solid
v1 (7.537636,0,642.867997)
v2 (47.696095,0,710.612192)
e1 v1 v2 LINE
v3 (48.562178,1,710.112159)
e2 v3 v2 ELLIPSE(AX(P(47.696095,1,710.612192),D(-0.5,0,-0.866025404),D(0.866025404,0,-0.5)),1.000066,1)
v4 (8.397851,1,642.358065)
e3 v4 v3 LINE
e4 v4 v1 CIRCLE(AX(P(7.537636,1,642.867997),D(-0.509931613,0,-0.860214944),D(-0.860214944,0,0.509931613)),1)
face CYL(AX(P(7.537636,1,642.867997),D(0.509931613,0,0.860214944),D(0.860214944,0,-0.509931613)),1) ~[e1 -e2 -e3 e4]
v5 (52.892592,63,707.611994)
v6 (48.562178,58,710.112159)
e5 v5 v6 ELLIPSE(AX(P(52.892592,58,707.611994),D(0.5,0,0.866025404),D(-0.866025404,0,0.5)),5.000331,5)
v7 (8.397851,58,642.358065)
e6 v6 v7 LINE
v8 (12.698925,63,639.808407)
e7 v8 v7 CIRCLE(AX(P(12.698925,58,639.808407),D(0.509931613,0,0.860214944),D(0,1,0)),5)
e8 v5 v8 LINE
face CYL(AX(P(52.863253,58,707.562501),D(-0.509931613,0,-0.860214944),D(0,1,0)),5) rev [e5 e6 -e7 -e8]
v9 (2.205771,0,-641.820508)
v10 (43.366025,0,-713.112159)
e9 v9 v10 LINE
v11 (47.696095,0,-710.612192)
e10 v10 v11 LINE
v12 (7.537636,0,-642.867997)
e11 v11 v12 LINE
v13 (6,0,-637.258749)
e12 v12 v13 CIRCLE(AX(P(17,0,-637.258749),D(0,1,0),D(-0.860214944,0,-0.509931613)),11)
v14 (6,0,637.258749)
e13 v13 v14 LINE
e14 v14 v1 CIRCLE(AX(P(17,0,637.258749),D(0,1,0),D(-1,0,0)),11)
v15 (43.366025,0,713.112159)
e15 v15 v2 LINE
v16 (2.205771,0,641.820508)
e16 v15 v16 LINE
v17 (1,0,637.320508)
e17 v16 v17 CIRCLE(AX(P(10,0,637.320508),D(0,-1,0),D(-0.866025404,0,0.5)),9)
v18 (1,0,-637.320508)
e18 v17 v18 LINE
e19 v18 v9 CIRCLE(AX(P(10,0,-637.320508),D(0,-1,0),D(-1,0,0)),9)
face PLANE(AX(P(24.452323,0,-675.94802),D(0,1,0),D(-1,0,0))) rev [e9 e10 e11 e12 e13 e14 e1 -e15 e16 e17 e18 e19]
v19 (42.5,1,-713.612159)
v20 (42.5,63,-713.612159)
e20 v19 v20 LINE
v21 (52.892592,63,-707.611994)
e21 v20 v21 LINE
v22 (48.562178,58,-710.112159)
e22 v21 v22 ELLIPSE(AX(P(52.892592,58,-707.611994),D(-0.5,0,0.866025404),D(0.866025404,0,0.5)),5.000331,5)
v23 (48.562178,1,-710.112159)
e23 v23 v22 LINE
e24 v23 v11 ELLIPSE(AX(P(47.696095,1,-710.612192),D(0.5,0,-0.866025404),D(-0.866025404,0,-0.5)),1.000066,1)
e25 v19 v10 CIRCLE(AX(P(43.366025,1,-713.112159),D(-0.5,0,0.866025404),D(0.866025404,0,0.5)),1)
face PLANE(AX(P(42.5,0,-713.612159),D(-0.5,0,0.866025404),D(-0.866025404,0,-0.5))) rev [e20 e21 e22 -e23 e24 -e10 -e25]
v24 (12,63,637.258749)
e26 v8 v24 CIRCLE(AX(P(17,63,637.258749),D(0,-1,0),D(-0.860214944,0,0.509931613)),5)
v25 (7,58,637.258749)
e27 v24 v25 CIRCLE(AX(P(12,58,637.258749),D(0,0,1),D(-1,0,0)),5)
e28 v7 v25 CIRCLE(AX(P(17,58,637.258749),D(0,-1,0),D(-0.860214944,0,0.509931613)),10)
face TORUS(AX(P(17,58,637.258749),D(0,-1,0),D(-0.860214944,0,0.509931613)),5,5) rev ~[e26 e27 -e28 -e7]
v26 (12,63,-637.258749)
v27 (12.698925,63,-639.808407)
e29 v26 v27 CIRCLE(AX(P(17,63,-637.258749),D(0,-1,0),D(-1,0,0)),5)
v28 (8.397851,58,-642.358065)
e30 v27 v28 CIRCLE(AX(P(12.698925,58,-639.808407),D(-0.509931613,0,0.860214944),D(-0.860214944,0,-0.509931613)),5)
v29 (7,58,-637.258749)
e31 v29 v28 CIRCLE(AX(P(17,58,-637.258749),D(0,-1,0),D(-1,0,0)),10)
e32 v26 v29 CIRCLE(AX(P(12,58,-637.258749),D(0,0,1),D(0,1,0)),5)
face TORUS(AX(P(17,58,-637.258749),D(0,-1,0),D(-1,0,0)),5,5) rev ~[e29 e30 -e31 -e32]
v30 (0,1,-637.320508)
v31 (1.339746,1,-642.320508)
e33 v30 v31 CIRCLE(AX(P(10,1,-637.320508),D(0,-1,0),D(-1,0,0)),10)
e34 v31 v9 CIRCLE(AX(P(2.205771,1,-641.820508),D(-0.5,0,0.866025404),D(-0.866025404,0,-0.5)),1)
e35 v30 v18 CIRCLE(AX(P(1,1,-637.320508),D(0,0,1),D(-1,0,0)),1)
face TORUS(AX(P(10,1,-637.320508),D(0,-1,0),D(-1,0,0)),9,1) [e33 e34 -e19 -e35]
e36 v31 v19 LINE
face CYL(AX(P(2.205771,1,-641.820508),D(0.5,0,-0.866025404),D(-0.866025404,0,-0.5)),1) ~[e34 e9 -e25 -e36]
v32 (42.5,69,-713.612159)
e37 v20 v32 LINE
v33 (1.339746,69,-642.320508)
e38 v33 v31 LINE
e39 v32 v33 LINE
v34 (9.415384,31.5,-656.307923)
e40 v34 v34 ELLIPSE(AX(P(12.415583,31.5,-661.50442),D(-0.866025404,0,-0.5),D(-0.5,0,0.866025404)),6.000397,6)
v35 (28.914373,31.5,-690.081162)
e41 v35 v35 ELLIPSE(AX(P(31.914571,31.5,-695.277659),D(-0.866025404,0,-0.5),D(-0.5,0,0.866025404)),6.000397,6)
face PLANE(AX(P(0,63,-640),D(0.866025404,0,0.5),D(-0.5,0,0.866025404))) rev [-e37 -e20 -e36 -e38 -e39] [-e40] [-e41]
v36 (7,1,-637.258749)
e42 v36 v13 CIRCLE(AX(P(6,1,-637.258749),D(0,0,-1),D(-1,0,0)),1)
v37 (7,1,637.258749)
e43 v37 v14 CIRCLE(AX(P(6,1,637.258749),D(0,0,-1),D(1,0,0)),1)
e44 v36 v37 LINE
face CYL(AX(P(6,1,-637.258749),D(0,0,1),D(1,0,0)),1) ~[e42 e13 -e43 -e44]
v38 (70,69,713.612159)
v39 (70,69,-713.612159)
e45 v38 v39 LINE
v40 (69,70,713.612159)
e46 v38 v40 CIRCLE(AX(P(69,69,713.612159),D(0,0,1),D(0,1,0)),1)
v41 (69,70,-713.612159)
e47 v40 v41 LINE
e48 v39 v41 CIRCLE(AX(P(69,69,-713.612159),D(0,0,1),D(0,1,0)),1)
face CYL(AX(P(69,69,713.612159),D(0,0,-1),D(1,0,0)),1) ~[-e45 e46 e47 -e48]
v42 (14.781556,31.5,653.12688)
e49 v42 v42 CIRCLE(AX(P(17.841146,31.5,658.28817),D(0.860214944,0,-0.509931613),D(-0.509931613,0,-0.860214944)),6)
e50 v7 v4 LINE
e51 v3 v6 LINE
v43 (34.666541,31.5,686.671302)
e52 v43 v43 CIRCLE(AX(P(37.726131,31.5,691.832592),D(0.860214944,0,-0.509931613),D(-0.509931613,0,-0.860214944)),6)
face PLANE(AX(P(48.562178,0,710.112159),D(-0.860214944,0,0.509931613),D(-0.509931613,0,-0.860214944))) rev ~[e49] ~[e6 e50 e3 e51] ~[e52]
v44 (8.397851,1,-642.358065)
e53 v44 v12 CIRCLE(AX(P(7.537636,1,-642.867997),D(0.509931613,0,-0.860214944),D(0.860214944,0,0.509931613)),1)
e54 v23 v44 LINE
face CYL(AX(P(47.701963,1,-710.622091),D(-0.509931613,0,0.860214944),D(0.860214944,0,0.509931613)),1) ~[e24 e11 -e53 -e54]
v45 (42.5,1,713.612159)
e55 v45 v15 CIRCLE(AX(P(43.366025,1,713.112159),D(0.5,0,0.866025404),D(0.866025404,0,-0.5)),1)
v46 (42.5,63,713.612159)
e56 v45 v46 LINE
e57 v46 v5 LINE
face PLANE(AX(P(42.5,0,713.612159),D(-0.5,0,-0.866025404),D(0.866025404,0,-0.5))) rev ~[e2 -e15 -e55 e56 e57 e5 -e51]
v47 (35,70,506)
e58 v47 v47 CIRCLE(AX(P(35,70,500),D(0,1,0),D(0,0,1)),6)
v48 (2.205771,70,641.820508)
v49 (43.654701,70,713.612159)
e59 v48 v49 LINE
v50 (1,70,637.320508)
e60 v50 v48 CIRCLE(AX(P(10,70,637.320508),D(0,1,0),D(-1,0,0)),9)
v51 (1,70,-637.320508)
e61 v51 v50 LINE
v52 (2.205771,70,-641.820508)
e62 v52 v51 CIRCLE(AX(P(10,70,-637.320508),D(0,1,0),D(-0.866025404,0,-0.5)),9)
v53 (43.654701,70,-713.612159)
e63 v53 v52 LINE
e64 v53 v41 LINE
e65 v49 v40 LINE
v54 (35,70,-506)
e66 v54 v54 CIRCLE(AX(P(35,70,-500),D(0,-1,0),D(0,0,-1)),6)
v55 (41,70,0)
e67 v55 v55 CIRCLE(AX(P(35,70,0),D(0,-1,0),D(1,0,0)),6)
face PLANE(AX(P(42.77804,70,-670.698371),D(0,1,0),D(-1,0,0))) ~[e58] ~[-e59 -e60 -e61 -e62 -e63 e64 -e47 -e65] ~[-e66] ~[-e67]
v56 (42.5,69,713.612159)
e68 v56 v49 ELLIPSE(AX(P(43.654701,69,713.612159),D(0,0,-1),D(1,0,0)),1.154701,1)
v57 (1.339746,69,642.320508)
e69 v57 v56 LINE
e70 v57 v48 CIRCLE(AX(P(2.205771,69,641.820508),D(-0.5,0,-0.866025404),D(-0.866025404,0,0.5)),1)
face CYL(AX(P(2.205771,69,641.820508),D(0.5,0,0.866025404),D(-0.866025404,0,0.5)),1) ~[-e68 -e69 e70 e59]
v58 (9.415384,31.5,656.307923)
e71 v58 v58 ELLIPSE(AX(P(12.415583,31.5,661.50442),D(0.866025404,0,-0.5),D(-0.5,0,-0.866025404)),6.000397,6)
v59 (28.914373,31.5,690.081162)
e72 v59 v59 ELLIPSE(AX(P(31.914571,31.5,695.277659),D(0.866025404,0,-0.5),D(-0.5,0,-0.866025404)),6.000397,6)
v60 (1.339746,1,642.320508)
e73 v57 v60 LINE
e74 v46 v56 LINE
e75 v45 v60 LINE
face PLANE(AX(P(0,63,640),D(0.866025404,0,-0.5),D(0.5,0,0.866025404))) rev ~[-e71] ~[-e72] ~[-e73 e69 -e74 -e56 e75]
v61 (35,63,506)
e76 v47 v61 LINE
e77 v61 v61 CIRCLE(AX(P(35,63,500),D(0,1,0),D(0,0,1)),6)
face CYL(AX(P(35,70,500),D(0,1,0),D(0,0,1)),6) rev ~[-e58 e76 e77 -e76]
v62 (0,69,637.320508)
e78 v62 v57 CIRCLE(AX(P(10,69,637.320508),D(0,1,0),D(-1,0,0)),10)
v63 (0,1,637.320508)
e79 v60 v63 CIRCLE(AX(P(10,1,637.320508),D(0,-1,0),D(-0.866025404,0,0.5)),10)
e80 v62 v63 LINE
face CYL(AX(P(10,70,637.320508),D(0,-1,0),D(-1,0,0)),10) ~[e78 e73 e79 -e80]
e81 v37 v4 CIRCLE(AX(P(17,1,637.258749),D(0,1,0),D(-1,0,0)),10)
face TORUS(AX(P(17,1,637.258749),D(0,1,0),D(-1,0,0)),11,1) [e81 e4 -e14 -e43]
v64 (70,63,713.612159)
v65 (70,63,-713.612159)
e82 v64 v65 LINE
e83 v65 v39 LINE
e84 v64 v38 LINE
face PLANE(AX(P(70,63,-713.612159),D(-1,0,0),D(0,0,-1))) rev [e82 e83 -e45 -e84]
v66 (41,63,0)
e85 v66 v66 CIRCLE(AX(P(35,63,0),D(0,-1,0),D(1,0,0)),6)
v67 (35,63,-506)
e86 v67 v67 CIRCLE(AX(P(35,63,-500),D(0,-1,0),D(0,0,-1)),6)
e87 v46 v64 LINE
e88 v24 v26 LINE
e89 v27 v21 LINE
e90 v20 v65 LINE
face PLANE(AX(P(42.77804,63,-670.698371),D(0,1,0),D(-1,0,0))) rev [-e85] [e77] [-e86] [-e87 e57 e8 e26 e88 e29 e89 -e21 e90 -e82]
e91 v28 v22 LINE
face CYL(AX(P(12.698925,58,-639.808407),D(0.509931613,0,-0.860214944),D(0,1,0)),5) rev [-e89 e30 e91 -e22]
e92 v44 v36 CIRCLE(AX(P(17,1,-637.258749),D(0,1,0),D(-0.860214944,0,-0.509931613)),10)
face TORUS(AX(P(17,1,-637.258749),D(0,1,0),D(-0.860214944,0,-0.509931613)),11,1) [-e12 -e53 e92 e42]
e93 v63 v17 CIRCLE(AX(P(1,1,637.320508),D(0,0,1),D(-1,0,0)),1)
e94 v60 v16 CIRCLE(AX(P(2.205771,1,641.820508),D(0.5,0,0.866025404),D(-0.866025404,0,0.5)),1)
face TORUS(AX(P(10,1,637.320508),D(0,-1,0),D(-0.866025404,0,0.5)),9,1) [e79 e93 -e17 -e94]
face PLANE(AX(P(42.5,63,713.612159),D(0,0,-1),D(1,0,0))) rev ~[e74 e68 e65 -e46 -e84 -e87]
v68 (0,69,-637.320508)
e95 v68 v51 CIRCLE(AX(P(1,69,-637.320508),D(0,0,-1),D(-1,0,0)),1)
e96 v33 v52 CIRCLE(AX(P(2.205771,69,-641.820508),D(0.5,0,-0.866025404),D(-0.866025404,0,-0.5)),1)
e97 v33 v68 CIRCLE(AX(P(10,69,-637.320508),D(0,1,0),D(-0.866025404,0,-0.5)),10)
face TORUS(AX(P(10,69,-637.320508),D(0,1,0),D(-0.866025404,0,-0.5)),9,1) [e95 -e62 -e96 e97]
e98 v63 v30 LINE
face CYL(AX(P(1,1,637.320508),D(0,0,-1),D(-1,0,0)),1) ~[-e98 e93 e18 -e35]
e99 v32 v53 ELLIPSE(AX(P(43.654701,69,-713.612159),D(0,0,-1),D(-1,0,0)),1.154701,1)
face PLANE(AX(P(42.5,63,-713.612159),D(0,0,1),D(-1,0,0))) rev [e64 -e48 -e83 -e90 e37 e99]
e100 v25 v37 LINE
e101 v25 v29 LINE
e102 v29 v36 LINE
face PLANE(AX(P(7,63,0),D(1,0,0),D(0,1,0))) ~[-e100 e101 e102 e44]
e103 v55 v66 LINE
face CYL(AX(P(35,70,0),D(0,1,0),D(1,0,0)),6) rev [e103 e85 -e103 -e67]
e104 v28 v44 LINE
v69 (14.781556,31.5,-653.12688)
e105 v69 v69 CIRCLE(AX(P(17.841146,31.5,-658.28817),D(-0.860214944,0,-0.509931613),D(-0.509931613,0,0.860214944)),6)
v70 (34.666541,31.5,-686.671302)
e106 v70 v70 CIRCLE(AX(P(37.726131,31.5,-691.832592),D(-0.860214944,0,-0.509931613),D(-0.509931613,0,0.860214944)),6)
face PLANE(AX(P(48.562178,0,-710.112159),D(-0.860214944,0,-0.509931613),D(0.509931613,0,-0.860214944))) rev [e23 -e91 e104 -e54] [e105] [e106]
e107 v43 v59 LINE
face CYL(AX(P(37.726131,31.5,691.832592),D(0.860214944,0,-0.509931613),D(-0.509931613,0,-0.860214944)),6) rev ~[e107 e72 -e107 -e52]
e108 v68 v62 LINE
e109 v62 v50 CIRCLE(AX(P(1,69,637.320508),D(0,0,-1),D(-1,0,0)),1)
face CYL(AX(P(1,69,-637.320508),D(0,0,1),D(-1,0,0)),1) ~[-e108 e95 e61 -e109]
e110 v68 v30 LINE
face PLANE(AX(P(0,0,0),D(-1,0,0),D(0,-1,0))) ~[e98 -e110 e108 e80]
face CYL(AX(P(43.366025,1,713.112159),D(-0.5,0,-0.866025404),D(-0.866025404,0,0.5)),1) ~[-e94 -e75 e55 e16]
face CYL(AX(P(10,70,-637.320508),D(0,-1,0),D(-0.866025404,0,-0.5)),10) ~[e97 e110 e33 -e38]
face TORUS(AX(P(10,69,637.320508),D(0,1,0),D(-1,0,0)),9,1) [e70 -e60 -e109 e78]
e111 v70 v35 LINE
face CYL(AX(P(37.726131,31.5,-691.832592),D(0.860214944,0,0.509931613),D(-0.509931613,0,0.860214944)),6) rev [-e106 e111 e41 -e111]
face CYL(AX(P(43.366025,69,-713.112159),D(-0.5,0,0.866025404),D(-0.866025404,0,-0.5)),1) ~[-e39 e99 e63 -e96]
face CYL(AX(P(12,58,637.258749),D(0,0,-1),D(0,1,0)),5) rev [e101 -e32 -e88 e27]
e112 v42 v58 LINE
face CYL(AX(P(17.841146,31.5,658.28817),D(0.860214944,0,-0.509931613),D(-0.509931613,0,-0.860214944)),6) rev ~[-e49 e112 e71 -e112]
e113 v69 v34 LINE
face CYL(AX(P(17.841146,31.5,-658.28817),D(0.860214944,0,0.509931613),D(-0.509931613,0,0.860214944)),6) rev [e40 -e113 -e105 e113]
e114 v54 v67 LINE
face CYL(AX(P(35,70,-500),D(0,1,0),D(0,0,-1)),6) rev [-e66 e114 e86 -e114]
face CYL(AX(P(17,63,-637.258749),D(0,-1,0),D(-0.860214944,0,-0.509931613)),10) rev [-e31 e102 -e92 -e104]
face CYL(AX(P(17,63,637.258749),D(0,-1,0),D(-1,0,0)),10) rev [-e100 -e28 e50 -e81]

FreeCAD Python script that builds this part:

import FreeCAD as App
import Part
import Sketcher

V = App.Vector
Q = App.Units.Quantity


def edges_at(feature, points):
    """Names of the edges that pass closest to the given points."""
    edges = feature.Shape.Edges
    near = lambda p: min(range(len(edges)), key=lambda i: edges[i].distToShape(Part.Vertex(*p))[0])
    return sorted({f"Edge{near(p) + 1}" for p in points})

doc = App.newDocument("Part")
body = doc.addObject("PartDesign::Body", "Body")

# Sketch on XY plane
sketch1 = body.newObject("Sketcher::SketchObject", "Sketch")
sketch1.AttachmentSupport = (doc.getObject("XY_Plane"), [""])
sketch1.MapMode = "FlatFace"
sketch1.addGeometry(Part.LineSegment(V(0, 70, 0), V(0, 0, 0)), False)
sketch1.addGeometry(Part.LineSegment(V(0, 0, 0), V(7, 0, 0)), False)
sketch1.addGeometry(Part.LineSegment(V(7, 0, 0), V(7, 63, 0)), False)
sketch1.addGeometry(Part.LineSegment(V(7, 63, 0), V(70, 63, 0)), False)
sketch1.addGeometry(Part.LineSegment(V(70, 63, 0), V(70, 70, 0)), False)
sketch1.addGeometry(Part.LineSegment(V(70, 70, 0), V(0, 70, 0)), False)
sketch1.addConstraint(Sketcher.Constraint("Coincident", 0, 2, 1, 1))
sketch1.addConstraint(Sketcher.Constraint("Coincident", 1, 2, 2, 1))
sketch1.addConstraint(Sketcher.Constraint("Coincident", 2, 2, 3, 1))
sketch1.addConstraint(Sketcher.Constraint("Coincident", 3, 2, 4, 1))
sketch1.addConstraint(Sketcher.Constraint("Coincident", 4, 2, 5, 1))
sketch1.addConstraint(Sketcher.Constraint("Coincident", 5, 2, 0, 1))
sketch1.addConstraint(Sketcher.Constraint("Vertical", 0))
sketch1.addConstraint(Sketcher.Constraint("Horizontal", 1))
sketch1.addConstraint(Sketcher.Constraint("Vertical", 2))
sketch1.addConstraint(Sketcher.Constraint("Horizontal", 3))
sketch1.addConstraint(Sketcher.Constraint("Vertical", 4))
sketch1.addConstraint(Sketcher.Constraint("Horizontal", 5))
sketch1.addConstraint(Sketcher.Constraint("Coincident", 0, 2, -1, 1))
sketch1.addConstraint(Sketcher.Constraint("Equal", 5, 0))
sketch1.addConstraint(Sketcher.Constraint("Equal", 3, 2))
sketch1.addConstraint(Sketcher.Constraint("DistanceX", 1, 1, 1, 2, 7.0))
sketch1.addConstraint(Sketcher.Constraint("DistanceX", 3, 1, 3, 2, 63.0))
pad1 = body.newObject("PartDesign::Pad", "Pad")
pad1.Profile = sketch1
pad1.Length = 640

# Sketch on XZ plane
sketch2 = body.newObject("Sketcher::SketchObject", "Sketch001")
sketch2.AttachmentSupport = (doc.getObject("XZ_Plane"), [""])
sketch2.MapMode = "FlatFace"
sketch2.AttachmentOffset = App.Placement(V(0, 0, -70), App.Rotation())
sketch2.addGeometry(Part.Circle(V(35, 0, 0), V(0, 0, 1), 6), False)
sketch2.addGeometry(Part.Circle(V(35, -500, 0), V(0, 0, 1), 6), False)
sketch2.addGeometry(Part.Circle(V(35, 500, 0), V(0, 0, 1), 6), False)
sketch2.addConstraint(Sketcher.Constraint("Equal", 0, 1))
sketch2.addConstraint(Sketcher.Constraint("Equal", 1, 2))
sketch2.addConstraint(Sketcher.Constraint("Symmetric", 1, 3, 2, 3, -1))
sketch2.addConstraint(Sketcher.Constraint("PointOnObject", 0, 3, -1))
sketch2.addConstraint(Sketcher.Constraint("Vertical", 0, 3, 1, 3))
sketch2.addConstraint(Sketcher.Constraint("Diameter", 0, 12.0))
sketch2.addConstraint(Sketcher.Constraint("DistanceX", -1, 1, 0, 3, 35.0))
sketch2.addConstraint(Sketcher.Constraint("DistanceY", 1, 3, -1, 1, 500.0))
pocket1 = body.newObject("PartDesign::Pocket", "Pocket")
pocket1.Profile = sketch2
pocket1.Length = 10
pocket1.Reversed = True

# Sketch on XZ plane
sketch3 = body.newObject("Sketcher::SketchObject", "Sketch002")
sketch3.AttachmentSupport = (doc.getObject("XZ_Plane"), [""])
sketch3.MapMode = "FlatFace"
sketch3.addGeometry(Part.LineSegment(V(0, 640, 0), V(42, 714, 0)), False)
sketch3.addGeometry(Part.LineSegment(V(42, 714, 0), V(49, 710, 0)), False)
sketch3.addGeometry(Part.LineSegment(V(49, 710, 0), V(7, 640, 0)), False)
sketch3.addGeometry(Part.LineSegment(V(7, 640, 0), V(0, 640, 0)), False)
sketch3.addConstraint(Sketcher.Constraint("Coincident", 0, 2, 1, 1))
sketch3.addConstraint(Sketcher.Constraint("Coincident", 1, 2, 2, 1))
sketch3.addConstraint(Sketcher.Constraint("Coincident", 2, 2, 3, 1))
sketch3.addConstraint(Sketcher.Constraint("Coincident", 3, 2, 0, 1))
sketch3.addConstraint(Sketcher.Constraint("Horizontal", 3))
sketch3.addConstraint(Sketcher.Constraint("PointOnObject", 3, 2, -2))
sketch3.addConstraint(Sketcher.Constraint("Perpendicular", 0, 1))
sketch3.addConstraint(Sketcher.Constraint("DistanceX", 3, 2, 3, 1, 7.0))
sketch3.addConstraint(Sketcher.Constraint("Angle", 0, Q("60 deg")))
sketch3.addConstraint(Sketcher.Constraint("Distance", 0, 85.0))
sketch3.addConstraint(Sketcher.Constraint("Distance", 1, 7.0))
sketch3.addConstraint(Sketcher.Constraint("DistanceY", -1, 1, 2, 2, 640.0))
pad2 = body.newObject("PartDesign::Pad", "Pad001")
pad2.Profile = sketch3
pad2.Length = 63
pad2.Reversed = True

# Sketch on XZ plane
sketch4 = body.newObject("Sketcher::SketchObject", "Sketch003")
sketch4.AttachmentSupport = (doc.getObject("XZ_Plane"), [""])
sketch4.MapMode = "FlatFace"
sketch4.AttachmentOffset = App.Placement(V(0, 0, -63), App.Rotation())
sketch4.addGeometry(Part.LineSegment(V(70, 640, 0), V(0, 640, 0)), False)
sketch4.addGeometry(Part.LineSegment(V(0, 640, 0), V(42, 714, 0)), False)
sketch4.addGeometry(Part.LineSegment(V(42, 714, 0), V(70, 714, 0)), False)
sketch4.addGeometry(Part.LineSegment(V(70, 714, 0), V(70, 640, 0)), False)
sketch4.addConstraint(Sketcher.Constraint("Coincident", 0, 2, 1, 1))
sketch4.addConstraint(Sketcher.Constraint("Coincident", 1, 2, 2, 1))
sketch4.addConstraint(Sketcher.Constraint("Coincident", 2, 2, 3, 1))
sketch4.addConstraint(Sketcher.Constraint("Coincident", 3, 2, 0, 1))
sketch4.addConstraint(Sketcher.Constraint("Horizontal", 0))
sketch4.addConstraint(Sketcher.Constraint("Horizontal", 2))
sketch4.addConstraint(Sketcher.Constraint("Vertical", 3))
sketch4.addConstraint(Sketcher.Constraint("PointOnObject", 0, 2, -2))
sketch4.addConstraint(Sketcher.Constraint("DistanceX", 0, 2, 0, 1, 70.0))
sketch4.addConstraint(Sketcher.Constraint("Angle", 1, Q("60 deg")))
sketch4.addConstraint(Sketcher.Constraint("Distance", 1, 85.0))
sketch4.addConstraint(Sketcher.Constraint("DistanceY", -1, 1, 0, 2, 640.0))
pad3 = body.newObject("PartDesign::Pad", "Pad002")
pad3.Profile = sketch4
pad3.Length = 7
pad3.Reversed = True

# Sketch on an angled plane
sketch5 = body.newObject("Sketcher::SketchObject", "Sketch004")
sketch5.Placement = App.Placement(V(-275.55672, 0, 163.348804), App.Rotation(V(-0.509931613, 0, -0.860214944), V(0, 1, 0), V(0.860214944, 0, -0.509931613), "ZXY"))
sketch5.addGeometry(Part.Circle(V(-614, 31, 0), V(0, 0, 1), 6), False)
sketch5.addGeometry(Part.Circle(V(-575, 31, 0), V(0, 0, 1), 6), False)
sketch5.addConstraint(Sketcher.Constraint("Equal", 0, 1))
sketch5.addConstraint(Sketcher.Constraint("Horizontal", 0, 3, 1, 3))
sketch5.addConstraint(Sketcher.Constraint("Diameter", 0, 12.0))
sketch5.addConstraint(Sketcher.Constraint("DistanceY", -1, 1, 0, 3, 31.5))
sketch5.addConstraint(Sketcher.Constraint("DistanceX", 0, 3, -1, 1, 614.362481))
sketch5.addConstraint(Sketcher.Constraint("DistanceX", 1, 3, -1, 1, 575.367085))
pocket2 = body.newObject("PartDesign::Pocket", "Pocket001")
pocket2.Profile = sketch5
pocket2.Length = 7
body2 = doc.addObject("PartDesign::Body", "Body001")
doc.recompute()

body2.BaseFeature = body
doc.recompute()

mirroring = doc.addObject("Part::Mirroring", "Mirroring")
mirroring.Source = body
mirroring.Base = V(0, 0, 0)
mirroring.Normal = V(0, 0, 1)
body3 = doc.addObject("PartDesign::Body", "Body002")
body3.BaseFeature = mirroring
boolean = body2.newObject("PartDesign::Boolean", "Boolean")
boolean.Type = "Fuse"
boolean.addObjects([body3])
doc.recompute()

fillet = body2.newObject("PartDesign::Fillet", "Fillet")
fillet.Base = (boolean, edges_at(boolean, [(0, 35, 640), (0, 35, -640)]))
fillet.Radius = 10
doc.recompute()

fillet2 = body2.newObject("PartDesign::Fillet", "Fillet001")
fillet2.Base = (fillet, edges_at(fillet, [(7, 31.5, -640), (7, 31.5, 640)]))
fillet2.Radius = 10
doc.recompute()

fillet3 = body2.newObject("PartDesign::Fillet", "Fillet002")
fillet3.Base = (fillet2, edges_at(fillet2, [
    (7, 63, 0),
    (7.356, 63, -639.902),
    (7.356, 63, 639.902),
    (28.48, 63, 676.235),
    (28.48, 63, -676.235),
]))
fillet3.Radius = 5
doc.recompute()

fillet4 = body2.newObject("PartDesign::Fillet", "Fillet003")
fillet4.Base = (fillet3, edges_at(fillet3, [
    (0, 70, 0),
    (0, 0, 0),
    (70, 70, 0),
    (21.92, 0, -677.966),
    (21.92, 0, 677.966),
    (0.341, 0, 639.909),
    (0.341, 0, -639.909),
    (21.92, 70, -677.966),
    (21.92, 70, 677.966),
    (0.341, 70, 639.909),
    (0.341, 70, -639.909),
    (7, 0, 0),
    (7.356, 0, 639.902),
    (7.356, 0, -639.902),
    (0, 70, 0),
    (0, 70, 0),
    (70, 70, 0),
    (70, 70, 0),
    (28.48, 0, 676.235),
    (28.48, 0, -676.235),
]))
fillet4.Radius = 1
mirroring.Visibility = False

doc.recompute()
